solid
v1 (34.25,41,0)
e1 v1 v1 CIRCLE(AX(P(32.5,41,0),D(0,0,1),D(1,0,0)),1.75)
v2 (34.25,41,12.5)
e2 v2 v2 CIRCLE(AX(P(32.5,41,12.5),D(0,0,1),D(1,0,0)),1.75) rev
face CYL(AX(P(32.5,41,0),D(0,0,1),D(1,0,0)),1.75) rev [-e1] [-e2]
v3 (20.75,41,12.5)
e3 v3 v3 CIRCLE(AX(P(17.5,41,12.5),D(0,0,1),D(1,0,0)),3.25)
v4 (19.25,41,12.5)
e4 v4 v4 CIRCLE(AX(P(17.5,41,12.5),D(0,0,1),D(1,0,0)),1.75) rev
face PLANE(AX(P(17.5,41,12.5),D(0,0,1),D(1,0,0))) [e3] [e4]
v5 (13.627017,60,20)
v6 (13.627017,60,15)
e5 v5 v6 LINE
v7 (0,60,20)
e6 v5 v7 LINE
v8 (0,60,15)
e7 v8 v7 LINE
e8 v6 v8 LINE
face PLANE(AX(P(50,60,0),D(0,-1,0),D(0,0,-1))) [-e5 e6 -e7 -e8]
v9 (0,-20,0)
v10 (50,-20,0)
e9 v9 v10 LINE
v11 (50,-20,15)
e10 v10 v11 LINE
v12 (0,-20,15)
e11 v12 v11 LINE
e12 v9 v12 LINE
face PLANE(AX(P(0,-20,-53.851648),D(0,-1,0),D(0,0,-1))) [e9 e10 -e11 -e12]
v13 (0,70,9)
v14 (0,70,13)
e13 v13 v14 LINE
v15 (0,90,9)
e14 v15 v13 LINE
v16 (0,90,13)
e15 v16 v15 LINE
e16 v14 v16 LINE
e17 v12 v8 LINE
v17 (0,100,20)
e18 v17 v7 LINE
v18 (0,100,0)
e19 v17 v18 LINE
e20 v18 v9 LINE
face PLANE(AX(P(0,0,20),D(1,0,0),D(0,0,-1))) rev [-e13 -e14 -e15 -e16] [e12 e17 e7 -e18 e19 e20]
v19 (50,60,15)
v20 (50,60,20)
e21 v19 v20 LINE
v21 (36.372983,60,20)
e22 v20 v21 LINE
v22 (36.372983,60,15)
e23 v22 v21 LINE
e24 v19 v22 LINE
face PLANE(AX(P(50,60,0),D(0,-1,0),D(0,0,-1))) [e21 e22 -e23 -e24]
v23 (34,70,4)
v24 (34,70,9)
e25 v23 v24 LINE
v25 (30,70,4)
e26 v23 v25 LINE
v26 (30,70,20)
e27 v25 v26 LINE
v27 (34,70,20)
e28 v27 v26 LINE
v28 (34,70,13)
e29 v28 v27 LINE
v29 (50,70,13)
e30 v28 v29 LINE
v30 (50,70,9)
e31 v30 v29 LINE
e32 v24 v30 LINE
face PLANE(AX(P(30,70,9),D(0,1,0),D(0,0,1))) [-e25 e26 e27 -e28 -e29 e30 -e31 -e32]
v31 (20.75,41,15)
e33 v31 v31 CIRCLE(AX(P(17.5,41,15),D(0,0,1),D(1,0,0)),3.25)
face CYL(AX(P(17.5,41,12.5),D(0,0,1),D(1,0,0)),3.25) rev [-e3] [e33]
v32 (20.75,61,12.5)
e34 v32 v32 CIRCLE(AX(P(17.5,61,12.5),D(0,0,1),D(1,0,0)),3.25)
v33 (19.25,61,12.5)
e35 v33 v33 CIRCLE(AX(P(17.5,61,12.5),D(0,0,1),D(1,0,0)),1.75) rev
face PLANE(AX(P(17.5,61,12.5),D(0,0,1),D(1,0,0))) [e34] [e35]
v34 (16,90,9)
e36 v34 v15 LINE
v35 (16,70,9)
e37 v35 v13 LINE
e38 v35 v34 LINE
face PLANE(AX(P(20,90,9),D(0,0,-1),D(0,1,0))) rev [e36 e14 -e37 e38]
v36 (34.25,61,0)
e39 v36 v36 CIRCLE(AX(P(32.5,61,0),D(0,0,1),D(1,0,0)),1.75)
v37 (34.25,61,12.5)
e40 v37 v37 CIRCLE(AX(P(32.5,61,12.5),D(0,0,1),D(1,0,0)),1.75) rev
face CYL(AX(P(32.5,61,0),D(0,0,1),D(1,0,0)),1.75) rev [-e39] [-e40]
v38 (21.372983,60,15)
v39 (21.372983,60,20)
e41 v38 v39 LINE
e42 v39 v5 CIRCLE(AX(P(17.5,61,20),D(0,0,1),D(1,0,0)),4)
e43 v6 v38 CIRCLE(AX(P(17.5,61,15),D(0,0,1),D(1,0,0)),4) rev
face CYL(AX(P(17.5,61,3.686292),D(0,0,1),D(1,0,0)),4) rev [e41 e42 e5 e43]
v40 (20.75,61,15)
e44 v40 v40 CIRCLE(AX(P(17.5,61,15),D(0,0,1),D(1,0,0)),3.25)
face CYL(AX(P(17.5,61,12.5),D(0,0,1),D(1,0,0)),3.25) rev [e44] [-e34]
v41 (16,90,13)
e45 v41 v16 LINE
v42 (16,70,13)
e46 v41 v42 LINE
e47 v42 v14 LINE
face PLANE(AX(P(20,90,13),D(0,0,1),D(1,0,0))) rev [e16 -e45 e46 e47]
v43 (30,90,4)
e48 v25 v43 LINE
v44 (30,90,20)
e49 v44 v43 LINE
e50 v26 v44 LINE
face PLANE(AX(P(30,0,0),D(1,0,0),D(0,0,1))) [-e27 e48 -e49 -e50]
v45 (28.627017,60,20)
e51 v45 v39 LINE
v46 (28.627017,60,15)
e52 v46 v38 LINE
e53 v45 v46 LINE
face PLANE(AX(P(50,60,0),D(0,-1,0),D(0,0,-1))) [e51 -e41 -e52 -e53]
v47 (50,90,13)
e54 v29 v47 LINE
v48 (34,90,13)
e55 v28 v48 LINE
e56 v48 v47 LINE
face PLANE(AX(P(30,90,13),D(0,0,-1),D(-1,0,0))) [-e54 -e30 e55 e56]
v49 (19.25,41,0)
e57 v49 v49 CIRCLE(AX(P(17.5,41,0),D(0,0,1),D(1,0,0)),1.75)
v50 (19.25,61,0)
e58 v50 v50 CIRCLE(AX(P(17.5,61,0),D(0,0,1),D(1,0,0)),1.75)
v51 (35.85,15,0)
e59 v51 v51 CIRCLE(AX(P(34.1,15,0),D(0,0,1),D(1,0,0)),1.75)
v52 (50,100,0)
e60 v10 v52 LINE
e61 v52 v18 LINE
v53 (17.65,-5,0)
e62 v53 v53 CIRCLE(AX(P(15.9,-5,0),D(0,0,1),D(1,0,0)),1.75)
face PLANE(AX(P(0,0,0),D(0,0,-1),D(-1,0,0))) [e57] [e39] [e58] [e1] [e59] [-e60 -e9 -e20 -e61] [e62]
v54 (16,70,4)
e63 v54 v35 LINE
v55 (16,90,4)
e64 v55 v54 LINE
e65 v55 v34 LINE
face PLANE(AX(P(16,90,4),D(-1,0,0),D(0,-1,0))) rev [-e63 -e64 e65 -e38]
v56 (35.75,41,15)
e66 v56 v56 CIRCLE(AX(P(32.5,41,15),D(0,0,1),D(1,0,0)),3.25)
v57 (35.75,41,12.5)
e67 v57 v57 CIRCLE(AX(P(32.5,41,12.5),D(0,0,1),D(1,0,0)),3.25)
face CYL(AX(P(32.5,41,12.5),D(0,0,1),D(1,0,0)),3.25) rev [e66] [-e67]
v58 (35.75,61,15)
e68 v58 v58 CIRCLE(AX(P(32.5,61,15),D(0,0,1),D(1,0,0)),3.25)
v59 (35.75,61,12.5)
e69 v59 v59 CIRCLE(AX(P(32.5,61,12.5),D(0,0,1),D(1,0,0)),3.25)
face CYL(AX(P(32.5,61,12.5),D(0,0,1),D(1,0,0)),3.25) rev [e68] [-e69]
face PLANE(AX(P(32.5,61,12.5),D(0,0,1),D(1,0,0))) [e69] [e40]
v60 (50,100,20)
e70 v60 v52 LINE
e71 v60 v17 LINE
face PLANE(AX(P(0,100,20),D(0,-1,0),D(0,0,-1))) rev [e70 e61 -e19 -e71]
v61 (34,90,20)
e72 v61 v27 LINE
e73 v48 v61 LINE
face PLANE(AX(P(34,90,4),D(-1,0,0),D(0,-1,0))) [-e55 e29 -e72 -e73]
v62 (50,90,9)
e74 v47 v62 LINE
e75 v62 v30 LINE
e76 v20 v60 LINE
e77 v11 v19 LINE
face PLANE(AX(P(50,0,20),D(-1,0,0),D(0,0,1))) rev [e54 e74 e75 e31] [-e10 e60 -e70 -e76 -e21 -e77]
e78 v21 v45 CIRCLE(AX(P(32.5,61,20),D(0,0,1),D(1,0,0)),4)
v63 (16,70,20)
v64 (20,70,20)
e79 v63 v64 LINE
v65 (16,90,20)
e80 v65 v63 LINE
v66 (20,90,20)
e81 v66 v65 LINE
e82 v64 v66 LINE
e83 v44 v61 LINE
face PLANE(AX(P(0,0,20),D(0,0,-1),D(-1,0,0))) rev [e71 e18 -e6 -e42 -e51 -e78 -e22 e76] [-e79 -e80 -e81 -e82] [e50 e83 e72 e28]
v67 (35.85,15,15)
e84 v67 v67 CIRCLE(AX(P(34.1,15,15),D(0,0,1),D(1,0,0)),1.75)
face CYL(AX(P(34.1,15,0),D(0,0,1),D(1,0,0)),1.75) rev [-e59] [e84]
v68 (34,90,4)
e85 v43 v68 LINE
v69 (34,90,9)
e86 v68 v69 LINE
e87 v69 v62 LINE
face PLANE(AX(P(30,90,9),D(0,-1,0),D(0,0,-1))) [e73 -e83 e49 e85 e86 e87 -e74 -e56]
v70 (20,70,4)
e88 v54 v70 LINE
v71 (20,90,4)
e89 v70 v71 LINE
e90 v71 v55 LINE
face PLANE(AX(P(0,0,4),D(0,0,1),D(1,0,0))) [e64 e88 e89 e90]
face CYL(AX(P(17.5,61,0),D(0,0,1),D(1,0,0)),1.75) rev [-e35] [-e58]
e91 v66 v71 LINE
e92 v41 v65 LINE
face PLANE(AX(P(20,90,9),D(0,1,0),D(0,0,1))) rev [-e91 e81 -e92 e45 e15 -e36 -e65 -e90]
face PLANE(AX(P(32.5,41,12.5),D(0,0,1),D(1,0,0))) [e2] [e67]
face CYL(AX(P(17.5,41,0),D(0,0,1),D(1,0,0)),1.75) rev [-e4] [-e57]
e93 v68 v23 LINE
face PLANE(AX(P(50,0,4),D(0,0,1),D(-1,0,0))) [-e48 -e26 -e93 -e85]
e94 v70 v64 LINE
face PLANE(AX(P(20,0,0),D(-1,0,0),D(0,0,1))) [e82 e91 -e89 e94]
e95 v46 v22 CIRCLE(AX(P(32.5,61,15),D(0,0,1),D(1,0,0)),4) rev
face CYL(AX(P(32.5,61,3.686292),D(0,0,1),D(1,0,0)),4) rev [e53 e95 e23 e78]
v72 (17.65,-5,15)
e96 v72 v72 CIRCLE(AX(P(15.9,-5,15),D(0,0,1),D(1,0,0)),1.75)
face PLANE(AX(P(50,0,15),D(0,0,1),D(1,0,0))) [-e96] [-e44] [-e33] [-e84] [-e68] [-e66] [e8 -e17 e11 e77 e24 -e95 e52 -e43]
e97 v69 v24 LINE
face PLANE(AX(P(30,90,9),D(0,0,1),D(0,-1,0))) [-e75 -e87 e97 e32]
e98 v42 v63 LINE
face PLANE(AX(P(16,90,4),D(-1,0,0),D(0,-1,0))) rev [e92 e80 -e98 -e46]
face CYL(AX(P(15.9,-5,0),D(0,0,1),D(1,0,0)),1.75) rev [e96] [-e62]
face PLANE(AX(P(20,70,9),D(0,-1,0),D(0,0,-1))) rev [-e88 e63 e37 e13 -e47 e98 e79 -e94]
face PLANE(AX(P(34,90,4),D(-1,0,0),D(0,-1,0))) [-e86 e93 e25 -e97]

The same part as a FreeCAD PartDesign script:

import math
import FreeCAD as App
import Part
import Sketcher
from FreeCAD import Vector
Q = App.Units.Quantity


def add_polygon(sketch, points):
    """Adds a closed chain of lines whose ends are joined by coincident constraints."""
    first, n = sketch.GeometryCount, len(points)
    for a, b in zip(points, points[1:] + points[:1]):
        sketch.addGeometry(Part.LineSegment(App.Vector(*a, 0), App.Vector(*b, 0)), False)
    for i in range(n):
        sketch.addConstraint(Sketcher.Constraint("Coincident", first + i, 2, first + (i + 1) % n, 1))

doc = App.newDocument("Part")
params = doc.addObject("Spreadsheet::Sheet", "Params")
for row, (alias, value) in enumerate([
    ("sketch1_width", "50 mm"),
    ("sketch1_height", "100 mm"),
    ("pad1_length", "20 mm"),
    ("sketch2_width", "20 mm"),
    ("sketch2_height", "4 mm"),
    ("pocket1_length", "20 mm"),
    ("sketch3_width", "4 mm"),
    ("sketch3_height", "20 mm"),
    ("pocket2_length", "16 mm"),
    ("sketch4_width", "60 mm"),
    ("sketch4_height", "5 mm"),
    ("sketch5_diameter", "3.5 mm"),
    ("sketch6_diameter", "8 mm"),
    ("pocket5_length", "5 mm"),
    ("sketch7_diameter", "6.5 mm"),
    ("pocket6_length", "2.5 mm"),
    ("sketch8_width", "50 mm"),
    ("sketch8_height", "20 mm"),
    ("pad2_length", "15 mm"),
    ("sketch9_diameter", "3.5 mm"),
], start=1):
    params.set(f"A{row}", alias)
    params.set(f"B{row}", "=" + value)
    params.setAlias(f"B{row}", alias)

body = doc.addObject("PartDesign::Body", "Body")

# Sketch on XY plane
sketch1 = body.newObject("Sketcher::SketchObject", "Sketch")
sketch1.AttachmentSupport = (doc.getObject("XY_Plane"), [""])
sketch1.MapMode = "FlatFace"
add_polygon(sketch1, [(0, 100), (0, 0), (50, 0), (50, 100)])  # lines 0-3
sketch1.addConstraint([
    Sketcher.Constraint("Vertical", 0),
    Sketcher.Constraint("Horizontal", 1),
    Sketcher.Constraint("Vertical", 2),
    Sketcher.Constraint("Horizontal", 3),
    Sketcher.Constraint("Coincident", 0, 2, -1, 1),
    Sketcher.Constraint("DistanceX", 1, 1, 1, 2, Q("50 mm")),
    Sketcher.Constraint("DistanceY", 0, 2, 0, 1, Q("100 mm")),
])
sketch1.setExpression("Constraints[9]", "Params.sketch1_width")
sketch1.setExpression("Constraints[10]", "Params.sketch1_height")
pad1 = body.newObject("PartDesign::Pad", "Pad")
pad1.Profile = sketch1
pad1.setExpression("Length", "Params.pad1_length")

# Sketch on YZ plane
sketch2 = body.newObject("Sketcher::SketchObject", "Sketch001")
sketch2.AttachmentSupport = (doc.getObject("YZ_Plane"), [""])
sketch2.MapMode = "FlatFace"
add_polygon(sketch2, [(90, 9), (70, 9), (70, 13), (90, 13)])  # lines 0-3
sketch2.addConstraint([
    Sketcher.Constraint("Horizontal", 0),
    Sketcher.Constraint("Vertical", 1),
    Sketcher.Constraint("Horizontal", 2),
    Sketcher.Constraint("Vertical", 3),
    Sketcher.Constraint("DistanceX", 0, 2, 0, 1, Q("20 mm")),
    Sketcher.Constraint("DistanceY", 1, 1, 1, 2, Q("4 mm")),
    Sketcher.Constraint("DistanceX", -1, 1, 0, 2, Q("70 mm")),
    Sketcher.Constraint("DistanceY", -1, 1, 0, 2, Q("9 mm")),
])
sketch2.setExpression("Constraints[8]", "Params.sketch2_width")
sketch2.setExpression("Constraints[9]", "Params.sketch2_height")
pocket1 = body.newObject("PartDesign::Pocket", "Pocket")
pocket1.Profile = sketch2
pocket1.setExpression("Length", "Params.pocket1_length")
pocket1.Reversed = True

# Sketch on XY plane
sketch3 = body.newObject("Sketcher::SketchObject", "Sketch002")
sketch3.AttachmentSupport = (doc.getObject("XY_Plane"), [""])
sketch3.MapMode = "FlatFace"
sketch3.AttachmentOffset = App.Placement(Vector(0, 0, 20), App.Rotation())
add_polygon(sketch3, [(16, 90), (16, 70), (20, 70), (20, 90)])  # lines 0-3
sketch3.addConstraint([
    Sketcher.Constraint("Vertical", 0),
    Sketcher.Constraint("Horizontal", 1),
    Sketcher.Constraint("Vertical", 2),
    Sketcher.Constraint("Horizontal", 3),
    Sketcher.Constraint("DistanceX", 1, 1, 1, 2, Q("4 mm")),
    Sketcher.Constraint("DistanceY", 0, 2, 0, 1, Q("20 mm")),
    Sketcher.Constraint("DistanceX", -1, 1, 0, 2, Q("16 mm")),
    Sketcher.Constraint("DistanceY", -1, 1, 0, 2, Q("70 mm")),
])
sketch3.setExpression("Constraints[8]", "Params.sketch3_width")
sketch3.setExpression("Constraints[9]", "Params.sketch3_height")
pocket2 = body.newObject("PartDesign::Pocket", "Pocket001")
pocket2.Profile = sketch3
pocket2.setExpression("Length", "Params.pocket2_length")
doc.recompute()

datumplane = body.newObject("PartDesign::Plane", "DatumPlane")
datumplane.AttachmentSupport = (doc.getObject("YZ_Plane"), [""])
datumplane.MapMode = "FlatFace"
datumplane.AttachmentOffset = App.Placement(Vector(0, 0, 25), App.Rotation())
mirrored = body.newObject("PartDesign::Mirrored", "Mirrored")
mirrored.Originals = [pocket1, pocket2]
mirrored.MirrorPlane = (datumplane, [""])
body.Tip = mirrored

# Sketch on YZ plane
sketch4 = body.newObject("Sketcher::SketchObject", "Sketch003")
sketch4.AttachmentSupport = (doc.getObject("YZ_Plane"), [""])
sketch4.MapMode = "FlatFace"
add_polygon(sketch4, [(60, 15), (0, 15), (0, 20), (60, 20)])  # lines 0-3
sketch4.addConstraint([
    Sketcher.Constraint("Horizontal", 0),
    Sketcher.Constraint("Vertical", 1),
    Sketcher.Constraint("Horizontal", 2),
    Sketcher.Constraint("Vertical", 3),
    Sketcher.Constraint("PointOnObject", 0, 2, -2),
    Sketcher.Constraint("DistanceX", 0, 2, 0, 1, Q("60 mm")),
    Sketcher.Constraint("DistanceY", 1, 1, 1, 2, Q("5 mm")),
    Sketcher.Constraint("DistanceY", -1, 1, 0, 2, Q("15 mm")),
])
sketch4.setExpression("Constraints[9]", "Params.sketch4_width")
sketch4.setExpression("Constraints[10]", "Params.sketch4_height")
pocket3 = body.newObject("PartDesign::Pocket", "Pocket002")
pocket3.Profile = sketch4
pocket3.Type = "ThroughAll"
pocket3.Reversed = True

# Sketch on XY plane
sketch5 = body.newObject("Sketcher::SketchObject", "Sketch004")
sketch5.AttachmentSupport = (doc.getObject("XY_Plane"), [""])
sketch5.MapMode = "FlatFace"
sketch5.AttachmentOffset = App.Placement(Vector(0, 0, 20), App.Rotation())
sketch5.addGeometry([
    Part.ArcOfCircle(Part.Circle(Vector(17.5, 61, 0), Vector(0, 0, 1), 1.8), math.radians(0), math.radians(215)),  # 0
    Part.ArcOfCircle(Part.Circle(Vector(17.5, 61, 0), Vector(0, 0, 1), 1.8), math.radians(-145), math.radians(-35)),  # 1
    Part.ArcOfCircle(Part.Circle(Vector(17.5, 61, 0), Vector(0, 0, 1), 1.8), math.radians(-35), math.radians(0)),  # 2
    Part.ArcOfCircle(Part.Circle(Vector(32.5, 61, 0), Vector(0, 0, 1), 1.8), math.radians(0), math.radians(215)),  # 3
    Part.ArcOfCircle(Part.Circle(Vector(32.5, 61, 0), Vector(0, 0, 1), 1.8), math.radians(-145), math.radians(-35)),  # 4
    Part.ArcOfCircle(Part.Circle(Vector(32.5, 61, 0), Vector(0, 0, 1), 1.8), math.radians(-35), math.radians(0)),  # 5
    Part.Circle(Vector(32.5, 41, 0), Vector(0, 0, 1), 1.8),  # 6
    Part.Circle(Vector(17.5, 41, 0), Vector(0, 0, 1), 1.8),  # 7
], False)
sketch5.addConstraint([
    Sketcher.Constraint("Tangent", 0, 2, 1, 1),
    Sketcher.Constraint("Tangent", 1, 2, 2, 1),
    Sketcher.Constraint("Tangent", 2, 2, 0, 1),
    Sketcher.Constraint("Tangent", 3, 2, 4, 1),
    Sketcher.Constraint("Tangent", 4, 2, 5, 1),
    Sketcher.Constraint("Tangent", 5, 2, 3, 1),
    Sketcher.Constraint("Equal", 2, 3),
    Sketcher.Constraint("Equal", 5, 6),
    Sketcher.Constraint("Equal", 6, 7),
    Sketcher.Constraint("Horizontal", 2, 3, 3, 3),
    Sketcher.Constraint("Horizontal", 6, 3, 7, 3),
    Sketcher.Constraint("Horizontal", 0, 2, 1, 2),
    Sketcher.Constraint("Horizontal", 5, 3, 2, 2),
    Sketcher.Constraint("Horizontal", 1, 2, 3, 2),
    Sketcher.Constraint("Horizontal", 3, 2, 4, 2),
    Sketcher.Constraint("Horizontal", 2, 2, 5, 2),
    Sketcher.Constraint("Vertical", 5, 3, 6, 3),
    Sketcher.Constraint("Vertical", 2, 3, 7, 3),
    Sketcher.Constraint("Diameter", 6, Q("3.5 mm")),
    Sketcher.Constraint("DistanceY", -1, 1, 0, 3, Q("61 mm")),
    Sketcher.Constraint("DistanceY", -1, 1, 6, 3, Q("41 mm")),
    Sketcher.Constraint("DistanceY", -1, 1, 0, 2, Q("60 mm")),
    Sketcher.Constraint("DistanceX", 0, 3, 3, 3, Q("15 mm")),
    Sketcher.Constraint("DistanceX", -1, 1, 0, 3, Q("17.5 mm")),
])
sketch5.setExpression("Constraints[18]", "Params.sketch5_diameter")
pocket4 = body.newObject("PartDesign::Pocket", "Pocket003")
pocket4.Profile = sketch5
pocket4.Type = "ThroughAll"

# Sketch on XY plane
sketch6 = body.newObject("Sketcher::SketchObject", "Sketch005")
sketch6.AttachmentSupport = (doc.getObject("XY_Plane"), [""])
sketch6.MapMode = "FlatFace"
sketch6.AttachmentOffset = App.Placement(Vector(0, 0, 20), App.Rotation())
sketch6.addGeometry([
    Part.Circle(Vector(32.5, 61, 0), Vector(0, 0, 1), 4),
    Part.Circle(Vector(17.5, 61, 0), Vector(0, 0, 1), 4),
], False)
sketch6.addConstraint([
    Sketcher.Constraint("Equal", 0, 1),
    Sketcher.Constraint("Horizontal", 0, 3, 1, 3),
    Sketcher.Constraint("Diameter", 0, Q("8 mm")),
    Sketcher.Constraint("DistanceY", -1, 1, 0, 3, Q("61 mm")),
    Sketcher.Constraint("DistanceX", 1, 3, 0, 3, Q("15 mm")),
    Sketcher.Constraint("DistanceX", -1, 1, 0, 3, Q("32.5 mm")),
])
sketch6.setExpression("Constraints[2]", "Params.sketch6_diameter")
pocket5 = body.newObject("PartDesign::Pocket", "Pocket004")
pocket5.Profile = sketch6
pocket5.setExpression("Length", "Params.pocket5_length")

# Sketch on XY plane
sketch7 = body.newObject("Sketcher::SketchObject", "Sketch006")
sketch7.AttachmentSupport = (doc.getObject("XY_Plane"), [""])
sketch7.MapMode = "FlatFace"
sketch7.AttachmentOffset = App.Placement(Vector(0, 0, 15), App.Rotation())
sketch7.addGeometry([
    Part.Circle(Vector(17.5, 61, 0), Vector(0, 0, 1), 3.2),
    Part.Circle(Vector(32.5, 61, 0), Vector(0, 0, 1), 3.2),
    Part.Circle(Vector(32.5, 41, 0), Vector(0, 0, 1), 3.2),
    Part.Circle(Vector(17.5, 41, 0), Vector(0, 0, 1), 3.2),
], False)
sketch7.addConstraint([
    Sketcher.Constraint("Equal", 0, 1),
    Sketcher.Constraint("Equal", 1, 2),
    Sketcher.Constraint("Equal", 2, 3),
    Sketcher.Constraint("Horizontal", 0, 3, 1, 3),
    Sketcher.Constraint("Horizontal", 2, 3, 3, 3),
    Sketcher.Constraint("Vertical", 1, 3, 2, 3),
    Sketcher.Constraint("Vertical", 0, 3, 3, 3),
    Sketcher.Constraint("Diameter", 0, Q("6.5 mm")),
    Sketcher.Constraint("DistanceY", -1, 1, 0, 3, Q("61 mm")),
    Sketcher.Constraint("DistanceY", -1, 1, 2, 3, Q("41 mm")),
    Sketcher.Constraint("DistanceX", 0, 3, 1, 3, Q("15 mm")),
    Sketcher.Constraint("DistanceX", -1, 1, 0, 3, Q("17.5 mm")),
])
sketch7.setExpression("Constraints[7]", "Params.sketch7_diameter")
pocket6 = body.newObject("PartDesign::Pocket", "Pocket005")
pocket6.Profile = sketch7
pocket6.setExpression("Length", "Params.pocket6_length")

# Sketch on XY plane
sketch8 = body.newObject("Sketcher::SketchObject", "Sketch007")
sketch8.AttachmentSupport = (doc.getObject("XY_Plane"), [""])
sketch8.MapMode = "FlatFace"
sketch8.AttachmentOffset = App.Placement(Vector(0, 0, 15), App.Rotation())
add_polygon(sketch8, [(0, 0), (0, -20), (50, -20), (50, 0)])  # lines 0-3
sketch8.addConstraint([
    Sketcher.Constraint("Vertical", 0),
    Sketcher.Constraint("Horizontal", 1),
    Sketcher.Constraint("Vertical", 2),
    Sketcher.Constraint("Horizontal", 3),
    Sketcher.Constraint("Coincident", 3, 2, -1, 1),
    Sketcher.Constraint("DistanceX", 1, 1, 1, 2, Q("50 mm")),
    Sketcher.Constraint("DistanceY", 0, 2, 0, 1, Q("20 mm")),
])
sketch8.setExpression("Constraints[9]", "Params.sketch8_width")
sketch8.setExpression("Constraints[10]", "Params.sketch8_height")
pad2 = body.newObject("PartDesign::Pad", "Pad001")
pad2.Profile = sketch8
pad2.setExpression("Length", "Params.pad2_length")
pad2.Reversed = True

# Sketch on XY plane
sketch9 = body.newObject("Sketcher::SketchObject", "Sketch008")
sketch9.AttachmentSupport = (doc.getObject("XY_Plane"), [""])
sketch9.MapMode = "FlatFace"
sketch9.AttachmentOffset = App.Placement(Vector(0, 0, 15), App.Rotation())
sketch9.addGeometry([
    Part.Circle(Vector(34.1, 15, 0), Vector(0, 0, 1), 1.8),
    Part.Circle(Vector(15.9, -5, 0), Vector(0, 0, 1), 1.8),
], False)
sketch9.addConstraint([
    Sketcher.Constraint("Equal", 0, 1),
    Sketcher.Constraint("Diameter", 0, Q("3.5 mm")),
    Sketcher.Constraint("DistanceY", -1, 1, 0, 3, Q("15 mm")),
    Sketcher.Constraint("DistanceY", 1, 3, -1, 1, Q("5 mm")),
    Sketcher.Constraint("DistanceX", -1, 1, 0, 3, Q("34.1 mm")),
    Sketcher.Constraint("DistanceX", -1, 1, 1, 3, Q("15.9 mm")),
])
sketch9.setExpression("Constraints[1]", "Params.sketch9_diameter")
pocket7 = body.newObject("PartDesign::Pocket", "Pocket006")
pocket7.Profile = sketch9
pocket7.Type = "ThroughAll"

doc.recompute()
